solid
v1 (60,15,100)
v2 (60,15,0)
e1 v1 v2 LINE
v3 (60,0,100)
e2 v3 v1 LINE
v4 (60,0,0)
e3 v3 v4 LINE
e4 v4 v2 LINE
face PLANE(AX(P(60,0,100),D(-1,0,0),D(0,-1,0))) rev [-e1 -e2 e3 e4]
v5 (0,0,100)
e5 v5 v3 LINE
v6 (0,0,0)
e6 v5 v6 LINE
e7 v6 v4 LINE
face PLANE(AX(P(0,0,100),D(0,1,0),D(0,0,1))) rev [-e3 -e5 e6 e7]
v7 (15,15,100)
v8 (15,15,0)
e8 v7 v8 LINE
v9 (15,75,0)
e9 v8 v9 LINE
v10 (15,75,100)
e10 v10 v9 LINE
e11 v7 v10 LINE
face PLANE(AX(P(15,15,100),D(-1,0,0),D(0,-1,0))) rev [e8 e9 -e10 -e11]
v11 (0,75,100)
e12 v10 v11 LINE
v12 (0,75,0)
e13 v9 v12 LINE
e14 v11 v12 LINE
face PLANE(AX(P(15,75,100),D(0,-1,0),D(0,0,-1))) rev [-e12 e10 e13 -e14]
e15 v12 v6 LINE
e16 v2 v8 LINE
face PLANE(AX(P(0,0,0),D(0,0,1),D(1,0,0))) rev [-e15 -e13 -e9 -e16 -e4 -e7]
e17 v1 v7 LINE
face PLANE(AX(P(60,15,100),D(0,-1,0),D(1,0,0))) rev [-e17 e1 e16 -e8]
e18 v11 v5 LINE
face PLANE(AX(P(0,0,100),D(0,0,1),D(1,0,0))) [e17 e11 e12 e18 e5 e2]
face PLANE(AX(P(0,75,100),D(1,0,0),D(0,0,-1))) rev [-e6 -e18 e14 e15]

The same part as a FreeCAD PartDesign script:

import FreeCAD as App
import Part
import Sketcher


def add_polygon(sketch, points):
    """Adds a closed chain of lines whose ends are joined by coincident constraints."""
    first, n = sketch.GeometryCount, len(points)
    for a, b in zip(points, points[1:] + points[:1]):
        sketch.addGeometry(Part.LineSegment(App.Vector(*a, 0), App.Vector(*b, 0)), False)
    for i in range(n):
        sketch.addConstraint(Sketcher.Constraint("Coincident", first + i, 2, first + (i + 1) % n, 1))

doc = App.newDocument("Part")
body = doc.addObject("PartDesign::Body", "Body")

# Sketch on XY plane
sketch1 = body.newObject("Sketcher::SketchObject", "Sketch")
sketch1.AttachmentSupport = (doc.getObject("XY_Plane"), [""])
sketch1.MapMode = "FlatFace"
add_polygon(sketch1, [(0, 0), (60, 0), (60, 15), (15, 15), (15, 75), (0, 75)])  # lines 0-5
sketch1.addConstraint([
    Sketcher.Constraint("Horizontal", 0),
    Sketcher.Constraint("Vertical", 1),
    Sketcher.Constraint("Horizontal", 2),
    Sketcher.Constraint("Vertical", 3),
    Sketcher.Constraint("Horizontal", 4),
    Sketcher.Constraint("Vertical", 5),
    Sketcher.Constraint("Coincident", 5, 2, -1, 1),
    Sketcher.Constraint("Equal", 4, 1),
    Sketcher.Constraint("Equal", 0, 3),
    Sketcher.Constraint("DistanceX", 0, 1, 0, 2, 60.0),
    Sketcher.Constraint("DistanceX", 2, 2, 2, 1, 45.0),
])
pad1 = body.newObject("PartDesign::Pad", "Pad")
pad1.Profile = sketch1
pad1.Length = 100

doc.recompute()
